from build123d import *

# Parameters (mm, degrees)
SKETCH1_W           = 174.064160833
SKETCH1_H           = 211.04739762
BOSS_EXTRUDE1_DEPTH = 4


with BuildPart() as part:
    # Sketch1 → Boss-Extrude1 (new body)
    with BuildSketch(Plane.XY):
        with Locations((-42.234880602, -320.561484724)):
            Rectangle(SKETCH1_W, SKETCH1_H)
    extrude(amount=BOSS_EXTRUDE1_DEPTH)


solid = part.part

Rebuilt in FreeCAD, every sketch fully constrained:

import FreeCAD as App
import Part
import Sketcher


def add_polygon(sketch, points):
    """Adds a closed chain of lines whose ends are joined by coincident constraints."""
    first, n = sketch.GeometryCount, len(points)
    for a, b in zip(points, points[1:] + points[:1]):
        sketch.addGeometry(Part.LineSegment(App.Vector(*a, 0), App.Vector(*b, 0)), False)
    for i in range(n):
        sketch.addConstraint(Sketcher.Constraint("Coincident", first + i, 2, first + (i + 1) % n, 1))

doc = App.newDocument("Part")
body = doc.addObject("PartDesign::Body", "Body")

# Sketch on XY plane
sketch1 = body.newObject("Sketcher::SketchObject", "Sketch")
sketch1.AttachmentSupport = (doc.getObject("XY_Plane"), [""])
sketch1.MapMode = "FlatFace"
add_polygon(sketch1, [(-129, -215), (-129, -426), (45, -426), (45, -215)])  # lines 0-3
sketch1.addConstraint([
    Sketcher.Constraint("Vertical", 0),
    Sketcher.Constraint("Horizontal", 1),
    Sketcher.Constraint("Vertical", 2),
    Sketcher.Constraint("Horizontal", 3),
    Sketcher.Constraint("DistanceX", 1, 1, 1, 2, 174.064161),
    Sketcher.Constraint("DistanceX", -1, 1, 1, 2, 44.7972),
    Sketcher.Constraint("DistanceY", 0, 2, 0, 1, 211.047398),
    Sketcher.Constraint("DistanceY", 0, 2, -1, 1, 426.085184),
])
pad1 = body.newObject("PartDesign::Pad", "Pad")
pad1.Profile = sketch1
pad1.Length = 4

doc.recompute()
